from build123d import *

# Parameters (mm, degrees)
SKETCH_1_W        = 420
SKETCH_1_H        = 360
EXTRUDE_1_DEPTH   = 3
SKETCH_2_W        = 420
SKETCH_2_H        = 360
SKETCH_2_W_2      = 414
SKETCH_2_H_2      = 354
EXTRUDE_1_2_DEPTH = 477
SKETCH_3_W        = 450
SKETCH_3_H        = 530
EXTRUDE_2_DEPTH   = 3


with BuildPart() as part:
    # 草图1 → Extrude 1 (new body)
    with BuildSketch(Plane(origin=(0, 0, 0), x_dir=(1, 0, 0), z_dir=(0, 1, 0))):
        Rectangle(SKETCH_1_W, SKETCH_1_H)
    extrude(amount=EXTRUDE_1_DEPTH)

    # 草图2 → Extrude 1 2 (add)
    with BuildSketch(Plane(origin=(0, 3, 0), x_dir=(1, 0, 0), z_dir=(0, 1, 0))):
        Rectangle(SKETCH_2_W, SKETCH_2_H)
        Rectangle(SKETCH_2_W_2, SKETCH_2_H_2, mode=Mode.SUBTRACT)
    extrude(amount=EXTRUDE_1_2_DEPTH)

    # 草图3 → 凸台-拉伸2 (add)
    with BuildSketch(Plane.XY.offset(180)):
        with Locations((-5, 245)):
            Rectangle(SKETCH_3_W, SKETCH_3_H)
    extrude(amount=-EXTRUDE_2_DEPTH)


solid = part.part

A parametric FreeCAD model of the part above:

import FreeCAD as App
import Part
import Sketcher
Q = App.Units.Quantity


def add_polygon(sketch, points):
    """Adds a closed chain of lines whose ends are joined by coincident constraints."""
    first, n = sketch.GeometryCount, len(points)
    for a, b in zip(points, points[1:] + points[:1]):
        sketch.addGeometry(Part.LineSegment(App.Vector(*a, 0), App.Vector(*b, 0)), False)
    for i in range(n):
        sketch.addConstraint(Sketcher.Constraint("Coincident", first + i, 2, first + (i + 1) % n, 1))

doc = App.newDocument("Part")
body = doc.addObject("PartDesign::Body", "Body")

# Sketch on XZ plane
sketch1 = doc.addObject("Sketcher::SketchObject", "Sketch")
body.addObject(sketch1)
sketch1.AttachmentSupport = (doc.XZ_Plane, [""])
sketch1.MapMode = "FlatFace"
add_polygon(sketch1, [(-210, -180), (-210, 180), (210, 180), (210, -180)])  # lines 0-3
sketch1.addConstraint(Sketcher.Constraint("Vertical", 0))
sketch1.addConstraint(Sketcher.Constraint("Horizontal", 1))
sketch1.addConstraint(Sketcher.Constraint("Vertical", 2))
sketch1.addConstraint(Sketcher.Constraint("Horizontal", 3))
sketch1.addConstraint(Sketcher.Constraint("Symmetric", 0, 2, 2, 2, -1, 1))
sketch1.addConstraint(Sketcher.Constraint("DistanceX", 1, 1, 1, 2, Q("420 mm")))
sketch1.addConstraint(Sketcher.Constraint("DistanceY", 0, 1, 0, 2, Q("360 mm")))
pad1 = doc.addObject("PartDesign::Pad", "Pad")
body.addObject(pad1)
pad1.Profile = sketch1
pad1.Length = 3
pad1.Reversed = True

# Sketch on XZ plane
sketch2 = doc.addObject("Sketcher::SketchObject", "Sketch001")
body.addObject(sketch2)
sketch2.AttachmentSupport = (doc.XZ_Plane, [""])
sketch2.MapMode = "FlatFace"
sketch2.AttachmentOffset = App.Placement(App.Vector(0, 0, -3), App.Rotation())
add_polygon(sketch2, [(-210, -180), (-210, 180), (210, 180), (210, -180)])  # lines 0-3
add_polygon(sketch2, [(207, 177), (-207, 177), (-207, -177), (207, -177)])  # lines 4-7
sketch2.addConstraint(Sketcher.Constraint("Vertical", 0))
sketch2.addConstraint(Sketcher.Constraint("Horizontal", 1))
sketch2.addConstraint(Sketcher.Constraint("Vertical", 2))
sketch2.addConstraint(Sketcher.Constraint("Horizontal", 3))
sketch2.addConstraint(Sketcher.Constraint("Horizontal", 4))
sketch2.addConstraint(Sketcher.Constraint("Vertical", 5))
sketch2.addConstraint(Sketcher.Constraint("Horizontal", 6))
sketch2.addConstraint(Sketcher.Constraint("Vertical", 7))
sketch2.addConstraint(Sketcher.Constraint("Symmetric", 0, 2, 2, 2, -1, 1))
sketch2.addConstraint(Sketcher.Constraint("Symmetric", 4, 2, 6, 2, -1, 1))
sketch2.addConstraint(Sketcher.Constraint("DistanceX", 1, 1, 1, 2, Q("420 mm")))
sketch2.addConstraint(Sketcher.Constraint("DistanceX", 4, 2, 4, 1, Q("414 mm")))
sketch2.addConstraint(Sketcher.Constraint("DistanceY", 0, 1, 0, 2, Q("360 mm")))
sketch2.addConstraint(Sketcher.Constraint("DistanceY", 5, 2, 5, 1, Q("354 mm")))
pad2 = doc.addObject("PartDesign::Pad", "Pad001")
body.addObject(pad2)
pad2.Profile = sketch2
pad2.Length = 477
pad2.Reversed = True

# Sketch on XY plane
sketch3 = doc.addObject("Sketcher::SketchObject", "Sketch002")
body.addObject(sketch3)
sketch3.AttachmentSupport = (doc.XY_Plane, [""])
sketch3.MapMode = "FlatFace"
sketch3.AttachmentOffset = App.Placement(App.Vector(0, 0, 180), App.Rotation())
add_polygon(sketch3, [(-230, 510), (-230, -20), (220, -20), (220, 510)])  # lines 0-3
sketch3.addConstraint(Sketcher.Constraint("Vertical", 0))
sketch3.addConstraint(Sketcher.Constraint("Horizontal", 1))
sketch3.addConstraint(Sketcher.Constraint("Vertical", 2))
sketch3.addConstraint(Sketcher.Constraint("Horizontal", 3))
sketch3.addConstraint(Sketcher.Constraint("DistanceX", 1, 1, 1, 2, Q("450 mm")))
sketch3.addConstraint(Sketcher.Constraint("DistanceY", 0, 2, 0, 1, Q("530 mm")))
sketch3.addConstraint(Sketcher.Constraint("DistanceX", 0, 2, -1, 1, Q("230 mm")))
sketch3.addConstraint(Sketcher.Constraint("DistanceY", 0, 2, -1, 1, Q("20 mm")))
pad3 = doc.addObject("PartDesign::Pad", "Pad002")
body.addObject(pad3)
pad3.Profile = sketch3
pad3.Length = 3
pad3.Reversed = True

doc.recompute()
